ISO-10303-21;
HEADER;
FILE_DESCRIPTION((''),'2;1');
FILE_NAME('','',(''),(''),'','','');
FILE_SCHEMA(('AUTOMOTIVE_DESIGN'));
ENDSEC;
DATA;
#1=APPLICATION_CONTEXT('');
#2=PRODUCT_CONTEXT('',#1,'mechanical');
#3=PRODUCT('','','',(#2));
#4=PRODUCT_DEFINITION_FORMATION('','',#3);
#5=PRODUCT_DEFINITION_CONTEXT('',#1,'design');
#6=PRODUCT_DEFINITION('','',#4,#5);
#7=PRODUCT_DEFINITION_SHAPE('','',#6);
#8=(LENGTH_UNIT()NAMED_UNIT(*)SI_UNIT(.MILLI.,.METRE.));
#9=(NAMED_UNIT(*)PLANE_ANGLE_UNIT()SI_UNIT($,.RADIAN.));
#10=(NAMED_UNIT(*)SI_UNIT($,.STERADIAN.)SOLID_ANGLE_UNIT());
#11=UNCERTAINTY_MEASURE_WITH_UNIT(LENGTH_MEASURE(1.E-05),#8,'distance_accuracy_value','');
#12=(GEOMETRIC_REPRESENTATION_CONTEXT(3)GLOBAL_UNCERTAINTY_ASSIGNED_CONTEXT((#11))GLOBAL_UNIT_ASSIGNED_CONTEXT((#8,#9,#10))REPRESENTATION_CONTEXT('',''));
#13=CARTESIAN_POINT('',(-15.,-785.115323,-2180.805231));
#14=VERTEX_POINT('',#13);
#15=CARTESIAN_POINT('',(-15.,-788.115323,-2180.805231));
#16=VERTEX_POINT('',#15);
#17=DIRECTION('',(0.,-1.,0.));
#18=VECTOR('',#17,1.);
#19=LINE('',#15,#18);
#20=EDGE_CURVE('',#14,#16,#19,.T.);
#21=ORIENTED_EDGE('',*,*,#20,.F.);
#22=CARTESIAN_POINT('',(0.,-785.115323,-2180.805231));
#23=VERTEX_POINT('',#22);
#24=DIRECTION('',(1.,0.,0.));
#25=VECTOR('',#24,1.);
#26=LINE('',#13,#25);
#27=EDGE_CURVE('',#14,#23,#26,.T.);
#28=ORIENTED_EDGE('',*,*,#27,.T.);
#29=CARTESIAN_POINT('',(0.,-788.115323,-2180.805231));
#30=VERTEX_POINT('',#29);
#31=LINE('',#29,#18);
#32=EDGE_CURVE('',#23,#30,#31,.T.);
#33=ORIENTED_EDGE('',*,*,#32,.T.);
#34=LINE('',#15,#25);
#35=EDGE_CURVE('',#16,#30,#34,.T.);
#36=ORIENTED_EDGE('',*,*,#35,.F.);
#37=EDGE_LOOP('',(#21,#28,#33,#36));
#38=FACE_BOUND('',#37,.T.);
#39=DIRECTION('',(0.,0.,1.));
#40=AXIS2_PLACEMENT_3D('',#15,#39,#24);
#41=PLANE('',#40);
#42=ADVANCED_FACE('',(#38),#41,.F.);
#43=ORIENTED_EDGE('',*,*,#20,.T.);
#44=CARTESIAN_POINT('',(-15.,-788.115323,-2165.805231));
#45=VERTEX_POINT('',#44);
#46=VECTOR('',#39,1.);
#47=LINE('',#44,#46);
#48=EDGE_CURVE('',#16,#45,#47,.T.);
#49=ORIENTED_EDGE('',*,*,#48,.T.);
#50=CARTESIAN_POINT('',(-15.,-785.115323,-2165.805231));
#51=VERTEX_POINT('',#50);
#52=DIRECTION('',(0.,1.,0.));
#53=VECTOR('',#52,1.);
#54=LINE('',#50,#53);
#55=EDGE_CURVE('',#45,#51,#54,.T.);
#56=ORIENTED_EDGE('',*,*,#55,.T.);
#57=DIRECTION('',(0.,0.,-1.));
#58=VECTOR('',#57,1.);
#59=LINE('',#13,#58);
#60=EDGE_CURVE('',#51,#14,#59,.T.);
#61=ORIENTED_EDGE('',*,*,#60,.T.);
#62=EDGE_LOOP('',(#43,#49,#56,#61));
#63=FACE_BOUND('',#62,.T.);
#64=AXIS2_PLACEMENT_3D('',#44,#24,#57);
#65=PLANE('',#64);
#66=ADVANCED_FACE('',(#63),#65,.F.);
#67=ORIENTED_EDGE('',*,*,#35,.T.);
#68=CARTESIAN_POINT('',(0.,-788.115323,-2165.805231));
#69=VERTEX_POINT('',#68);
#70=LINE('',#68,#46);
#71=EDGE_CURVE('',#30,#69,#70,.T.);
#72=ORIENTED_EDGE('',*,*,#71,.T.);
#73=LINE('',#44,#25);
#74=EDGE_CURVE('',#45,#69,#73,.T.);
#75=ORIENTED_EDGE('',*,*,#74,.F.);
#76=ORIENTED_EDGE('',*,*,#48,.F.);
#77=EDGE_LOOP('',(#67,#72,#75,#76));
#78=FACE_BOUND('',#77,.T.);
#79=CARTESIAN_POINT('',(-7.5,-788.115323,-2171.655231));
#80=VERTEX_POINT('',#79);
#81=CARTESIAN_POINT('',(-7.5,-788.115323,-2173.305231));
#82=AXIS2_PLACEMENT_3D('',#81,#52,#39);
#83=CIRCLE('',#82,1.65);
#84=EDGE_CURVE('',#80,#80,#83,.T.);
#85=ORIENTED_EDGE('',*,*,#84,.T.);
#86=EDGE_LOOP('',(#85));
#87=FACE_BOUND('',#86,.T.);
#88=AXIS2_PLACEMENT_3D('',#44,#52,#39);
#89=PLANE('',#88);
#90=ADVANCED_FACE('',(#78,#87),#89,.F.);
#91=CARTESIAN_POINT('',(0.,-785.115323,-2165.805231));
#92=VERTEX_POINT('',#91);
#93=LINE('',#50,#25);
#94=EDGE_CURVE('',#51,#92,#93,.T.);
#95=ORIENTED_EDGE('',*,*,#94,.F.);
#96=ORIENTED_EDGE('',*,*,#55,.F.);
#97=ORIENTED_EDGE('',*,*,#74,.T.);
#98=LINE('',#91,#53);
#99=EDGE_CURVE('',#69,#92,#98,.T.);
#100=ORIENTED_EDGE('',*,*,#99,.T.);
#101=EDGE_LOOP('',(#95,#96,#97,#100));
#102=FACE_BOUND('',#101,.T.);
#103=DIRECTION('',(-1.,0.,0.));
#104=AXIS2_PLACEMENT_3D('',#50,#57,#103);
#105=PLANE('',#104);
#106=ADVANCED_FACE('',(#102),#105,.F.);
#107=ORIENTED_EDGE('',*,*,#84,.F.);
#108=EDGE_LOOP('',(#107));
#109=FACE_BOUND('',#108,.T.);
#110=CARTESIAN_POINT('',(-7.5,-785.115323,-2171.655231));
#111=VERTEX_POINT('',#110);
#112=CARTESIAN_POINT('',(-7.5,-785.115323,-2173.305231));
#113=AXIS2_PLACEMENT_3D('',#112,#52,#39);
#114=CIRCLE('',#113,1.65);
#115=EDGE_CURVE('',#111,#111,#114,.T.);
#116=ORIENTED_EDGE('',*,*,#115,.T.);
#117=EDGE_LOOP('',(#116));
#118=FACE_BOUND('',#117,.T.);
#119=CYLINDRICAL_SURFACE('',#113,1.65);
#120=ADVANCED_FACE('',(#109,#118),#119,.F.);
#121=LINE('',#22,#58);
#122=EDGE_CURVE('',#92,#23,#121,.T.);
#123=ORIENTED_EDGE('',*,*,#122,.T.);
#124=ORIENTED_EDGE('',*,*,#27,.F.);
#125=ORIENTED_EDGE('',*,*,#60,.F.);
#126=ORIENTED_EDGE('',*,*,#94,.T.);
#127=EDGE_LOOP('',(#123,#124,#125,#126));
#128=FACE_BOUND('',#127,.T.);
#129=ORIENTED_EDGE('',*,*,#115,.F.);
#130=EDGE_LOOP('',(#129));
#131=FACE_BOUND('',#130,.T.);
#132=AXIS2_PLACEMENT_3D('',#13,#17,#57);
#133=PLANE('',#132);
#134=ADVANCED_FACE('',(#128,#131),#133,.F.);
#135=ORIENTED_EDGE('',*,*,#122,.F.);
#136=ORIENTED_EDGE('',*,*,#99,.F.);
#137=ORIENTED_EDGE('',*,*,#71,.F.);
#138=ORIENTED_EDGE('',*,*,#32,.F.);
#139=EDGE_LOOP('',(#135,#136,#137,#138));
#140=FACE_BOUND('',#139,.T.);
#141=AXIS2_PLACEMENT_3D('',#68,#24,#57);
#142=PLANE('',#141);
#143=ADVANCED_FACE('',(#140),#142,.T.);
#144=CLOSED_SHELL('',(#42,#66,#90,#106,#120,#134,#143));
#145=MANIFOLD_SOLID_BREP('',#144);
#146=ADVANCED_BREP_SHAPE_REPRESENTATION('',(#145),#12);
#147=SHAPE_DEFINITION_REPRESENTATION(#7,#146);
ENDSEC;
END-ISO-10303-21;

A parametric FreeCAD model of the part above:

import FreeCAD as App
import Part
import Sketcher

V = App.Vector
Q = App.Units.Quantity


def add_polygon(sketch, points):
    """Adds a closed chain of lines whose ends are joined by coincident constraints."""
    first, n = sketch.GeometryCount, len(points)
    for a, b in zip(points, points[1:] + points[:1]):
        sketch.addGeometry(Part.LineSegment(App.Vector(*a, 0), App.Vector(*b, 0)), False)
    for i in range(n):
        sketch.addConstraint(Sketcher.Constraint("Coincident", first + i, 2, first + (i + 1) % n, 1))

doc = App.newDocument("Part")
body = doc.addObject("PartDesign::Body", "Body")

# Sketch on YZ plane
sketch1 = doc.addObject("Sketcher::SketchObject", "Sketch")
body.addObject(sketch1)
sketch1.AttachmentSupport = (doc.YZ_Plane, [""])
sketch1.MapMode = "FlatFace"
add_polygon(sketch1, [(-785.115323, -2180.805231), (-788.115323, -2180.805231), (-788.115323, -2165.805231), (-785.115323, -2165.805231)])  # lines 0-3
sketch1.addConstraint([
    Sketcher.Constraint("Horizontal", 0),
    Sketcher.Constraint("Vertical", 1),
    Sketcher.Constraint("Horizontal", 2),
    Sketcher.Constraint("Vertical", 3),
    Sketcher.Constraint("DistanceX", 0, 2, 0, 1, Q("3 mm")),
    Sketcher.Constraint("DistanceY", 1, 1, 1, 2, Q("15 mm")),
    Sketcher.Constraint("DistanceY", 0, 2, -1, 1, Q("2180.805231 mm")),
    Sketcher.Constraint("DistanceX", 0, 2, -1, 1, Q("788.115323 mm")),
])
pad1 = doc.addObject("PartDesign::Pad", "Pad")
body.addObject(pad1)
pad1.Profile = sketch1
pad1.Length = 15
pad1.Reversed = True

# Sketch on XZ plane
sketch2 = doc.addObject("Sketcher::SketchObject", "Sketch001")
body.addObject(sketch2)
sketch2.AttachmentSupport = (doc.XZ_Plane, [""])
sketch2.MapMode = "FlatFace"
sketch2.AttachmentOffset = App.Placement(V(0, 0, 785.115323), App.Rotation())
sketch2.addGeometry(Part.Circle(V(-7.5, -2173.305231, 0), V(0, 0, 1), 1.65), False)
sketch2.addConstraint([
    Sketcher.Constraint("Diameter", 0, Q("3.3 mm")),
    Sketcher.Constraint("DistanceX", 0, 3, -1, 1, Q("7.5 mm")),
    Sketcher.Constraint("DistanceY", 0, 3, -1, 1, Q("2173.305231 mm")),
])
doc.recompute()
hole = doc.addObject("PartDesign::Hole", "Hole")
body.addObject(hole)
hole.Profile = sketch2
hole.ThreadType = "None"
hole.Diameter = 3.3
hole.DepthType = "Dimension"
hole.Depth = 11.5
hole.DrillPoint = "Angled"
hole.DrillPointAngle = 118
hole.Reversed = True

doc.recompute()
